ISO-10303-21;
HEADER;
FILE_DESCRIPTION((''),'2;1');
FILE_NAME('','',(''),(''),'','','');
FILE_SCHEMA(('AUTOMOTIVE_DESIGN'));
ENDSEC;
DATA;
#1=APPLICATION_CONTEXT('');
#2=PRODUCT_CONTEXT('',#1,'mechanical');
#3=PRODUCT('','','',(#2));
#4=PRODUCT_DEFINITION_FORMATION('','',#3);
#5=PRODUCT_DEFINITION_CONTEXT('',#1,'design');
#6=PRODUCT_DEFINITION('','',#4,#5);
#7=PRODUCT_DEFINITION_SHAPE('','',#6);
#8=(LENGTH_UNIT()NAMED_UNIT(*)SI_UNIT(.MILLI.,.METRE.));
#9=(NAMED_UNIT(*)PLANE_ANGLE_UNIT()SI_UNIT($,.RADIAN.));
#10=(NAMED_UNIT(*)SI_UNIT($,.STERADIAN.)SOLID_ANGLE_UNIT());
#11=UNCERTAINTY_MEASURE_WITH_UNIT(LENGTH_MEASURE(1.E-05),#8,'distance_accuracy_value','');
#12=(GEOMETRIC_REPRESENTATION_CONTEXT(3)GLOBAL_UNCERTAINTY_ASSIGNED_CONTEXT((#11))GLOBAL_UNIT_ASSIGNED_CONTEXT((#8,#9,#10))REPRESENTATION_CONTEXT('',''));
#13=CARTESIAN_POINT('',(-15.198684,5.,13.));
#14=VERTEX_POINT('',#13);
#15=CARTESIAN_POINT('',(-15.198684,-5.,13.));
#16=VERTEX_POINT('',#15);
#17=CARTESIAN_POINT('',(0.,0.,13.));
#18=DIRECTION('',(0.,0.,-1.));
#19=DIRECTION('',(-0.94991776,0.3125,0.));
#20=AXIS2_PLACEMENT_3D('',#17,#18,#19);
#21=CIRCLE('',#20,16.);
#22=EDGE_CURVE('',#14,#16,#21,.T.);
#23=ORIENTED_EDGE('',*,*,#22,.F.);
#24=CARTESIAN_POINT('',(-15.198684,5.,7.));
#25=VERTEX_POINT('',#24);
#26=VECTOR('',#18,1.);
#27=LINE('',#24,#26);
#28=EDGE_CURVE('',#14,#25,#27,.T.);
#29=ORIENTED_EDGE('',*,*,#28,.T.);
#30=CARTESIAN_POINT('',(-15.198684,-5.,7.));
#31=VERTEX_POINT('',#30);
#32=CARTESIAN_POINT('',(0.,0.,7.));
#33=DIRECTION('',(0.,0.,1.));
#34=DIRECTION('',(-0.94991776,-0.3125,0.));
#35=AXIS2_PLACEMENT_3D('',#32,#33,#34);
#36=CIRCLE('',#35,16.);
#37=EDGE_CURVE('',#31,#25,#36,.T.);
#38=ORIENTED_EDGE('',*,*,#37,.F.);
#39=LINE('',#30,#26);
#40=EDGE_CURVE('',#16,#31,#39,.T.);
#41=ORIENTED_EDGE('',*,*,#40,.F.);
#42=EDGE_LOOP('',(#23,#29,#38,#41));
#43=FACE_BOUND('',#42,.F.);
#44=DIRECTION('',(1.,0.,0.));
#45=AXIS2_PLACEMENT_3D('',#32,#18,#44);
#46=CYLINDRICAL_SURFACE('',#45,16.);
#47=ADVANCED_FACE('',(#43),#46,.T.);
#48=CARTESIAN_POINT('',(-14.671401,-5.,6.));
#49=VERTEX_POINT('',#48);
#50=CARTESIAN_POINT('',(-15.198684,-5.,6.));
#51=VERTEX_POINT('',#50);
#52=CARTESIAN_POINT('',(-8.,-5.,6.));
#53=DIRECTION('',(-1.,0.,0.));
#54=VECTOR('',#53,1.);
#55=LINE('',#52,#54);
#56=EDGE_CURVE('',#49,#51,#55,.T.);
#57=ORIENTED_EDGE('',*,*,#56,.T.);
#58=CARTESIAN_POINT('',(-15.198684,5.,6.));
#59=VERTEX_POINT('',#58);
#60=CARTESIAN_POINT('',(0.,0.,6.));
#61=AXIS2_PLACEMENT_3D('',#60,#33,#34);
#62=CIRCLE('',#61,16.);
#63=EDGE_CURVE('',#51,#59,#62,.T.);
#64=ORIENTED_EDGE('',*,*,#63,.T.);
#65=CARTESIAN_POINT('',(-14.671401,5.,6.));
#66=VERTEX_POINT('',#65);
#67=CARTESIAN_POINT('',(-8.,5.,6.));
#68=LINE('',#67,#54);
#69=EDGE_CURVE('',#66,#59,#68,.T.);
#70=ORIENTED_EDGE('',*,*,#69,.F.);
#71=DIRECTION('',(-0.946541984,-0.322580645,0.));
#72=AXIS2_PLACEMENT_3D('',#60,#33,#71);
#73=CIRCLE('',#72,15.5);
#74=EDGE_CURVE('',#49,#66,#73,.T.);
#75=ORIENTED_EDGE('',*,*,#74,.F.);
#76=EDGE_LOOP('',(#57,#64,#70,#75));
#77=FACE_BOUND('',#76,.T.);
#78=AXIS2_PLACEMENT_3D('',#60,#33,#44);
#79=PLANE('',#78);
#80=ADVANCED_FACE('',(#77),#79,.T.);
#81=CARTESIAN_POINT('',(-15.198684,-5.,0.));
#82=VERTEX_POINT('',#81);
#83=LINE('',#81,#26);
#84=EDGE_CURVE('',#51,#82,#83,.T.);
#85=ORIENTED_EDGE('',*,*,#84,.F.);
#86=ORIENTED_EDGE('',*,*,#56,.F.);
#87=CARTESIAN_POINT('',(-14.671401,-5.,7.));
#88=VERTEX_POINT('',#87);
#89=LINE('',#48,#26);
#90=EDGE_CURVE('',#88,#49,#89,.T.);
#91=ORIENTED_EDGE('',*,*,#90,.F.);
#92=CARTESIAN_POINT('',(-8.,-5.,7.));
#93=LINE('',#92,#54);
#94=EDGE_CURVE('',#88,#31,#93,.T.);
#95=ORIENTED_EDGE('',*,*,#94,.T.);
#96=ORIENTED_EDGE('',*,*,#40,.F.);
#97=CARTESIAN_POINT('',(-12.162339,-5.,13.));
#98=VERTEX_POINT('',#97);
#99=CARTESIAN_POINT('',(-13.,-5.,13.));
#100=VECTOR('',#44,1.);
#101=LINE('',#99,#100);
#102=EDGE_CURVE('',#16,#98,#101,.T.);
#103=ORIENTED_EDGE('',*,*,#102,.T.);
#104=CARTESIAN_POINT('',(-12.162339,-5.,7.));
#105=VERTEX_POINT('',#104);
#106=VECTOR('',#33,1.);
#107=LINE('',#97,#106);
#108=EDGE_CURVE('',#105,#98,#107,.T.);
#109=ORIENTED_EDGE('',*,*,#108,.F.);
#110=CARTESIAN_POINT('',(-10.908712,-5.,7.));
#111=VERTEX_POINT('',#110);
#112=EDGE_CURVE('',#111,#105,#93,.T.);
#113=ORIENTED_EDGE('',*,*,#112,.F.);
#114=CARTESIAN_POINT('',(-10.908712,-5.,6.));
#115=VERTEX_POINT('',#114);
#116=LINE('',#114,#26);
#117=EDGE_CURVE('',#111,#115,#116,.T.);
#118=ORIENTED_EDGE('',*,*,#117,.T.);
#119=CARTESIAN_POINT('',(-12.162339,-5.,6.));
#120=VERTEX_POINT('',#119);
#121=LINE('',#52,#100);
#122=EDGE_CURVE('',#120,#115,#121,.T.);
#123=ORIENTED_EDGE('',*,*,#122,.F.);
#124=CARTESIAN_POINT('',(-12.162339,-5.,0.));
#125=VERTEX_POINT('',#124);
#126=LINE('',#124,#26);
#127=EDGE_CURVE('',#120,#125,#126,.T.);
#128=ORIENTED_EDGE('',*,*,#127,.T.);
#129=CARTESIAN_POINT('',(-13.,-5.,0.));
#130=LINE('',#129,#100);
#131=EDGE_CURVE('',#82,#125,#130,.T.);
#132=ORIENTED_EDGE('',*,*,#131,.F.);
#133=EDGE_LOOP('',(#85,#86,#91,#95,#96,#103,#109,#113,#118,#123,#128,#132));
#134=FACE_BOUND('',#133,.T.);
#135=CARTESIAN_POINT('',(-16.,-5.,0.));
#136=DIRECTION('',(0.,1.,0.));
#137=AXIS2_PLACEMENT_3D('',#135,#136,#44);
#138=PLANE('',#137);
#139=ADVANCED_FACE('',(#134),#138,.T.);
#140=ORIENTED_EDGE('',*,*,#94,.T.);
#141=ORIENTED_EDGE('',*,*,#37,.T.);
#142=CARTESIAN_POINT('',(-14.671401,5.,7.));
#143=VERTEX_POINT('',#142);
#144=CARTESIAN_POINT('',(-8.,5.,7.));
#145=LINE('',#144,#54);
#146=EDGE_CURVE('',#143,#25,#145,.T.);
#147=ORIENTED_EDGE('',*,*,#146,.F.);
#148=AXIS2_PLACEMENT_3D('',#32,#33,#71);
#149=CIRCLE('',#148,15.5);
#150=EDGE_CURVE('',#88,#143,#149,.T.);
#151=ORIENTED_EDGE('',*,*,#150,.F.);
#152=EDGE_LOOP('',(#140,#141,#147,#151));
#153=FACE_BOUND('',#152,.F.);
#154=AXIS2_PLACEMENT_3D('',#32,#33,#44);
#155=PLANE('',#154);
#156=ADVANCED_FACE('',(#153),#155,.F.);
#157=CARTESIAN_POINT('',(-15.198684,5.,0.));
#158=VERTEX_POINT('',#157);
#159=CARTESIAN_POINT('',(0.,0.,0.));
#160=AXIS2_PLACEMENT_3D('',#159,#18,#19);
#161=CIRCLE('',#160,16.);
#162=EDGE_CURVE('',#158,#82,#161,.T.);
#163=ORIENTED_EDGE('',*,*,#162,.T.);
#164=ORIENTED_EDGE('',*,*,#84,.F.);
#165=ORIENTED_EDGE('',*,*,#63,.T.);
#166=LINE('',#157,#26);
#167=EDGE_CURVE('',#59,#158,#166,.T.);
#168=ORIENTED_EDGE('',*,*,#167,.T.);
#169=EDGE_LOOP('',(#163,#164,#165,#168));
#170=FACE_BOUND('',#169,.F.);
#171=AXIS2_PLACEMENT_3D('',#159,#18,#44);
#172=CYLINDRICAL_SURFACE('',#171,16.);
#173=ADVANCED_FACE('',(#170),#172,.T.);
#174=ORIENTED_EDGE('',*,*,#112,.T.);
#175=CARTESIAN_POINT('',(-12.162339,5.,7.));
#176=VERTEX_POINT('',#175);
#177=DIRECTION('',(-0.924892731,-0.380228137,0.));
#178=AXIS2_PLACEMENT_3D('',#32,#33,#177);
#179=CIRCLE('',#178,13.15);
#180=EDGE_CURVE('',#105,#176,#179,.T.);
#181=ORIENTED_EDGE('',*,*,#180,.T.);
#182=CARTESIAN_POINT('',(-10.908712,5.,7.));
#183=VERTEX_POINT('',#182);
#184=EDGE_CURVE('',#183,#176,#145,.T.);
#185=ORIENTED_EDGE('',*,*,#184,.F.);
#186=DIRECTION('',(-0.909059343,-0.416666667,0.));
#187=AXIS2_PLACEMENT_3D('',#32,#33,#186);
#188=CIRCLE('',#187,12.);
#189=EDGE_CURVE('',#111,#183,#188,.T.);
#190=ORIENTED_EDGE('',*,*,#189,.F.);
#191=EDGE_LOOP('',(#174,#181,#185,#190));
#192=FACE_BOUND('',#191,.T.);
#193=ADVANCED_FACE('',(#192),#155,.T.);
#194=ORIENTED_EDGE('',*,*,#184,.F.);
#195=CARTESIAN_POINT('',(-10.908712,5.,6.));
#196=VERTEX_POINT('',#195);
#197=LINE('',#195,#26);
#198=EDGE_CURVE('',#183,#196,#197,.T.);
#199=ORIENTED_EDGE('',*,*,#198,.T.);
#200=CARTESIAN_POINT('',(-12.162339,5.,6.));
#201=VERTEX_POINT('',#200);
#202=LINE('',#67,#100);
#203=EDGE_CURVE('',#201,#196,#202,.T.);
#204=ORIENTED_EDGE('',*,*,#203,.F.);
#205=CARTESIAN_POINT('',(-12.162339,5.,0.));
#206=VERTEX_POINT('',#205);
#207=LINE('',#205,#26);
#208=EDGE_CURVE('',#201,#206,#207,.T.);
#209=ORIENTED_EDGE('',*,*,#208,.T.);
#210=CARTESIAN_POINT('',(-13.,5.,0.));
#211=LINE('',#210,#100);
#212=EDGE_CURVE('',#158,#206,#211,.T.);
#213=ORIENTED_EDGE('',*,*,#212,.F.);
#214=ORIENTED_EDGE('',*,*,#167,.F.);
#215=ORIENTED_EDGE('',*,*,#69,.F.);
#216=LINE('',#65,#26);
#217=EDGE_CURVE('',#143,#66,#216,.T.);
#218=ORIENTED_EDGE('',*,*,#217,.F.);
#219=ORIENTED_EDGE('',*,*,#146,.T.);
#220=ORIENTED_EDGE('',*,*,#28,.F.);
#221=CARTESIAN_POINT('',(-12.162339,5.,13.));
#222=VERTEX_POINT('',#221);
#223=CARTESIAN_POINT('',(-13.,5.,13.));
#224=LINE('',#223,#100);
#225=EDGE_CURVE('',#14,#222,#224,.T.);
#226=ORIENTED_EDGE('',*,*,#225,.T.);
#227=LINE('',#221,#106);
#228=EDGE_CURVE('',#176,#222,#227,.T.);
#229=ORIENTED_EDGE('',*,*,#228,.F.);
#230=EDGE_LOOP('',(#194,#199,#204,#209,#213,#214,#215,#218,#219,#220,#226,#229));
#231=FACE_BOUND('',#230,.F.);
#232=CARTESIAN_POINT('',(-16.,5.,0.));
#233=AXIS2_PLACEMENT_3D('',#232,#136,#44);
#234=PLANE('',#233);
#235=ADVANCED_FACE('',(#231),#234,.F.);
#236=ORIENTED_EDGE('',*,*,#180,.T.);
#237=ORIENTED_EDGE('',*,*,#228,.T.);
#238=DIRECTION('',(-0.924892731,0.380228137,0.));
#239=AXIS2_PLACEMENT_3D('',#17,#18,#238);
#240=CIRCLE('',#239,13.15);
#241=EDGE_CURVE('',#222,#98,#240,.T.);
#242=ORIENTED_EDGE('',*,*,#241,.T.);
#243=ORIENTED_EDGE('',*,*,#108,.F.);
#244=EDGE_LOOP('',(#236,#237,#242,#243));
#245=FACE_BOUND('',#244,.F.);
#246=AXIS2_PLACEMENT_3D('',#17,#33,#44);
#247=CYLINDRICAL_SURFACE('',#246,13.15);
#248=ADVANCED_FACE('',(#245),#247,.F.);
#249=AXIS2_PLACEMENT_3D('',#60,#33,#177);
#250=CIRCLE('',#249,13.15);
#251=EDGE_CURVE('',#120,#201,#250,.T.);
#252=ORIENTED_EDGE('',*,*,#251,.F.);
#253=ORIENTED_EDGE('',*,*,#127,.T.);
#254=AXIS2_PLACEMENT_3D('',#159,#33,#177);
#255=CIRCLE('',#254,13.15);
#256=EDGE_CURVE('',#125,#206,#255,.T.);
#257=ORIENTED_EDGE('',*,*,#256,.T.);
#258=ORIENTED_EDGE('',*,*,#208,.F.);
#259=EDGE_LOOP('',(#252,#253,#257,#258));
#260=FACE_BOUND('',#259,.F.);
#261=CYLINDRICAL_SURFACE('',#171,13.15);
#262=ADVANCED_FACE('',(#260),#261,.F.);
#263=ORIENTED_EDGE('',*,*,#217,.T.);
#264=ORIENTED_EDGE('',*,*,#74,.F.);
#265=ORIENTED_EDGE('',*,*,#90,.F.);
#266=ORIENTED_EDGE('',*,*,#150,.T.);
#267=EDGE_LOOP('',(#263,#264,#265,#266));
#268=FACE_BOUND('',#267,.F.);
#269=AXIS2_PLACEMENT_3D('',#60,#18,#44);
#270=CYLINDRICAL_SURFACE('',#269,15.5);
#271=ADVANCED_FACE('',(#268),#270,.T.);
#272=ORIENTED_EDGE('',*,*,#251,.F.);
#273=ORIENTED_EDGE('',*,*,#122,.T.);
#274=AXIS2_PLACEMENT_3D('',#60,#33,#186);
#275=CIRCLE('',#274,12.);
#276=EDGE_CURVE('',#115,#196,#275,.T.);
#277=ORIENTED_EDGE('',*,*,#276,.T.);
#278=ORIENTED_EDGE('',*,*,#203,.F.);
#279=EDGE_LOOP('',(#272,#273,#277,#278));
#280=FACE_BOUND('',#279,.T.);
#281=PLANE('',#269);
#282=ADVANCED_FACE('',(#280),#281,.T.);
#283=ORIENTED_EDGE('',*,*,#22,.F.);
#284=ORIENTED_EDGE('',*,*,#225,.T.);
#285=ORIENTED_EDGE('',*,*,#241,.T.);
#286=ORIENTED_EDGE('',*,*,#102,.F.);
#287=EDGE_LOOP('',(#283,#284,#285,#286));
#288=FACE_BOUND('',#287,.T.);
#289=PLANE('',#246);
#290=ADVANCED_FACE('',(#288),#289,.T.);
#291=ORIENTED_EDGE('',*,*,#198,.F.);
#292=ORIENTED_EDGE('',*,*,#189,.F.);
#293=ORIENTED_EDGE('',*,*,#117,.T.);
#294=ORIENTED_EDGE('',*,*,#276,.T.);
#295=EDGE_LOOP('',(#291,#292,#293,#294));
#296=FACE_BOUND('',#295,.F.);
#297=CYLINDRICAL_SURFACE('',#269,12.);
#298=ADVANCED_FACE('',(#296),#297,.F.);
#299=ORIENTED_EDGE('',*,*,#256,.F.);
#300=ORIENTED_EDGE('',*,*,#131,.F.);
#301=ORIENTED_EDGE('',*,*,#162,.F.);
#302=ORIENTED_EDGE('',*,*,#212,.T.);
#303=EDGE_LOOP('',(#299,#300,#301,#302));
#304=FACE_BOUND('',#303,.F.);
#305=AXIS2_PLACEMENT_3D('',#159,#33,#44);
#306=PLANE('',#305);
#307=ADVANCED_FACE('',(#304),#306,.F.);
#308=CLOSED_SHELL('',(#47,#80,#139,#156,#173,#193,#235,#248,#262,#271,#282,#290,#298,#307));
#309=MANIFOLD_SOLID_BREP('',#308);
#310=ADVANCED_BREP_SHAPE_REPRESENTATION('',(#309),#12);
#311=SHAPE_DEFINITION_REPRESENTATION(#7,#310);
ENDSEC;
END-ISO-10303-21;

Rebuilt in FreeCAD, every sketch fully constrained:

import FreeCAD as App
import Part
import Sketcher
from FreeCAD import Vector


def add_polygon(sketch, points):
    """Adds a closed chain of lines whose ends are joined by coincident constraints."""
    first, n = sketch.GeometryCount, len(points)
    for a, b in zip(points, points[1:] + points[:1]):
        sketch.addGeometry(Part.LineSegment(App.Vector(*a, 0), App.Vector(*b, 0)), False)
    for i in range(n):
        sketch.addConstraint(Sketcher.Constraint("Coincident", first + i, 2, first + (i + 1) % n, 1))

doc = App.newDocument("Part")
body = doc.addObject("PartDesign::Body", "Body")

# Sketch on XY plane
sketch1 = body.newObject("Sketcher::SketchObject", "Sketch")
sketch1.AttachmentSupport = (doc.getObject("XY_Plane"), [""])
sketch1.MapMode = "FlatFace"
sketch1.addGeometry(Part.Circle(Vector(0, 0, 0), Vector(0, 0, 1), 16), False)
sketch1.addConstraint([
    Sketcher.Constraint("Coincident", 0, 3, -1, 1),
    Sketcher.Constraint("Diameter", 0, 32.0),
])
pad1 = body.newObject("PartDesign::Pad", "Pad")
pad1.Profile = sketch1
pad1.Length = 6

# Sketch on XY plane
sketch2 = body.newObject("Sketcher::SketchObject", "Sketch001")
sketch2.AttachmentSupport = (doc.getObject("XY_Plane"), [""])
sketch2.MapMode = "FlatFace"
sketch2.AttachmentOffset = App.Placement(Vector(0, 0, 6), App.Rotation())
sketch2.addGeometry(Part.Circle(Vector(0, 0, 0), Vector(0, 0, 1), 15.5), False)
sketch2.addConstraint([
    Sketcher.Constraint("Coincident", 0, 3, -1, 1),
    Sketcher.Constraint("Diameter", 0, 31.0),
])
pad2 = body.newObject("PartDesign::Pad", "Pad001")
pad2.Profile = sketch2
pad2.Length = 1

# Sketch on XY plane
sketch3 = body.newObject("Sketcher::SketchObject", "Sketch002")
sketch3.AttachmentSupport = (doc.getObject("XY_Plane"), [""])
sketch3.MapMode = "FlatFace"
sketch3.AttachmentOffset = App.Placement(Vector(0, 0, 7), App.Rotation())
sketch3.addGeometry(Part.Circle(Vector(0, 0, 0), Vector(0, 0, 1), 16), False)
sketch3.addConstraint([
    Sketcher.Constraint("Coincident", 0, 3, -1, 1),
    Sketcher.Constraint("Diameter", 0, 32.0),
])
pad3 = body.newObject("PartDesign::Pad", "Pad002")
pad3.Profile = sketch3
pad3.Length = 6

# Sketch on XY plane
sketch4 = body.newObject("Sketcher::SketchObject", "Sketch003")
sketch4.AttachmentSupport = (doc.getObject("XY_Plane"), [""])
sketch4.MapMode = "FlatFace"
sketch4.AttachmentOffset = App.Placement(Vector(0, 0, 13), App.Rotation())
sketch4.addGeometry(Part.Circle(Vector(0, 0, 0), Vector(0, 0, 1), 13.15), False)
sketch4.addConstraint([
    Sketcher.Constraint("Coincident", 0, 3, -1, 1),
    Sketcher.Constraint("Diameter", 0, 26.3),
])
pocket1 = body.newObject("PartDesign::Pocket", "Pocket")
pocket1.Profile = sketch4
pocket1.Length = 6

# Sketch on XY plane
sketch5 = body.newObject("Sketcher::SketchObject", "Sketch004")
sketch5.AttachmentSupport = (doc.getObject("XY_Plane"), [""])
sketch5.MapMode = "FlatFace"
sketch5.addGeometry(Part.Circle(Vector(0, 0, 0), Vector(0, 0, 1), 13.15), False)
sketch5.addConstraint([
    Sketcher.Constraint("Coincident", 0, 3, -1, 1),
    Sketcher.Constraint("Diameter", 0, 26.3),
])
pocket2 = body.newObject("PartDesign::Pocket", "Pocket001")
pocket2.Profile = sketch5
pocket2.Length = 6
pocket2.Reversed = True

# Sketch on XY plane
sketch6 = body.newObject("Sketcher::SketchObject", "Sketch005")
sketch6.AttachmentSupport = (doc.getObject("XY_Plane"), [""])
sketch6.MapMode = "FlatFace"
sketch6.AttachmentOffset = App.Placement(Vector(0, 0, 6), App.Rotation())
sketch6.addGeometry(Part.Circle(Vector(0, 0, 0), Vector(0, 0, 1), 12), False)
sketch6.addConstraint([
    Sketcher.Constraint("Coincident", 0, 3, -1, 1),
    Sketcher.Constraint("Diameter", 0, 24.0),
])
pocket3 = body.newObject("PartDesign::Pocket", "Pocket002")
pocket3.Profile = sketch6
pocket3.Length = 1
pocket3.Reversed = True

# Sketch on XY plane
sketch7 = body.newObject("Sketcher::SketchObject", "Sketch006")
sketch7.AttachmentSupport = (doc.getObject("XY_Plane"), [""])
sketch7.MapMode = "FlatFace"
add_polygon(sketch7, [(-16, -5), (-16, 5), (-10, 5), (-10, -5)])  # lines 0-3
sketch7.addConstraint([
    Sketcher.Constraint("Vertical", 0),
    Sketcher.Constraint("Horizontal", 1),
    Sketcher.Constraint("Vertical", 2),
    Sketcher.Constraint("Horizontal", 3),
    Sketcher.Constraint("DistanceX", 1, 1, 1, 2, 6.0),
    Sketcher.Constraint("DistanceY", 0, 1, 0, 2, 10.0),
    Sketcher.Constraint("DistanceX", 0, 2, -1, 1, 16.0),
    Sketcher.Constraint("DistanceY", -1, 1, 0, 2, 5.0),
])
pocket4 = body.newObject("PartDesign::Pocket", "Pocket003")
pocket4.Profile = sketch7
pocket4.Length = 13
pocket4.Reversed = True

doc.recompute()
